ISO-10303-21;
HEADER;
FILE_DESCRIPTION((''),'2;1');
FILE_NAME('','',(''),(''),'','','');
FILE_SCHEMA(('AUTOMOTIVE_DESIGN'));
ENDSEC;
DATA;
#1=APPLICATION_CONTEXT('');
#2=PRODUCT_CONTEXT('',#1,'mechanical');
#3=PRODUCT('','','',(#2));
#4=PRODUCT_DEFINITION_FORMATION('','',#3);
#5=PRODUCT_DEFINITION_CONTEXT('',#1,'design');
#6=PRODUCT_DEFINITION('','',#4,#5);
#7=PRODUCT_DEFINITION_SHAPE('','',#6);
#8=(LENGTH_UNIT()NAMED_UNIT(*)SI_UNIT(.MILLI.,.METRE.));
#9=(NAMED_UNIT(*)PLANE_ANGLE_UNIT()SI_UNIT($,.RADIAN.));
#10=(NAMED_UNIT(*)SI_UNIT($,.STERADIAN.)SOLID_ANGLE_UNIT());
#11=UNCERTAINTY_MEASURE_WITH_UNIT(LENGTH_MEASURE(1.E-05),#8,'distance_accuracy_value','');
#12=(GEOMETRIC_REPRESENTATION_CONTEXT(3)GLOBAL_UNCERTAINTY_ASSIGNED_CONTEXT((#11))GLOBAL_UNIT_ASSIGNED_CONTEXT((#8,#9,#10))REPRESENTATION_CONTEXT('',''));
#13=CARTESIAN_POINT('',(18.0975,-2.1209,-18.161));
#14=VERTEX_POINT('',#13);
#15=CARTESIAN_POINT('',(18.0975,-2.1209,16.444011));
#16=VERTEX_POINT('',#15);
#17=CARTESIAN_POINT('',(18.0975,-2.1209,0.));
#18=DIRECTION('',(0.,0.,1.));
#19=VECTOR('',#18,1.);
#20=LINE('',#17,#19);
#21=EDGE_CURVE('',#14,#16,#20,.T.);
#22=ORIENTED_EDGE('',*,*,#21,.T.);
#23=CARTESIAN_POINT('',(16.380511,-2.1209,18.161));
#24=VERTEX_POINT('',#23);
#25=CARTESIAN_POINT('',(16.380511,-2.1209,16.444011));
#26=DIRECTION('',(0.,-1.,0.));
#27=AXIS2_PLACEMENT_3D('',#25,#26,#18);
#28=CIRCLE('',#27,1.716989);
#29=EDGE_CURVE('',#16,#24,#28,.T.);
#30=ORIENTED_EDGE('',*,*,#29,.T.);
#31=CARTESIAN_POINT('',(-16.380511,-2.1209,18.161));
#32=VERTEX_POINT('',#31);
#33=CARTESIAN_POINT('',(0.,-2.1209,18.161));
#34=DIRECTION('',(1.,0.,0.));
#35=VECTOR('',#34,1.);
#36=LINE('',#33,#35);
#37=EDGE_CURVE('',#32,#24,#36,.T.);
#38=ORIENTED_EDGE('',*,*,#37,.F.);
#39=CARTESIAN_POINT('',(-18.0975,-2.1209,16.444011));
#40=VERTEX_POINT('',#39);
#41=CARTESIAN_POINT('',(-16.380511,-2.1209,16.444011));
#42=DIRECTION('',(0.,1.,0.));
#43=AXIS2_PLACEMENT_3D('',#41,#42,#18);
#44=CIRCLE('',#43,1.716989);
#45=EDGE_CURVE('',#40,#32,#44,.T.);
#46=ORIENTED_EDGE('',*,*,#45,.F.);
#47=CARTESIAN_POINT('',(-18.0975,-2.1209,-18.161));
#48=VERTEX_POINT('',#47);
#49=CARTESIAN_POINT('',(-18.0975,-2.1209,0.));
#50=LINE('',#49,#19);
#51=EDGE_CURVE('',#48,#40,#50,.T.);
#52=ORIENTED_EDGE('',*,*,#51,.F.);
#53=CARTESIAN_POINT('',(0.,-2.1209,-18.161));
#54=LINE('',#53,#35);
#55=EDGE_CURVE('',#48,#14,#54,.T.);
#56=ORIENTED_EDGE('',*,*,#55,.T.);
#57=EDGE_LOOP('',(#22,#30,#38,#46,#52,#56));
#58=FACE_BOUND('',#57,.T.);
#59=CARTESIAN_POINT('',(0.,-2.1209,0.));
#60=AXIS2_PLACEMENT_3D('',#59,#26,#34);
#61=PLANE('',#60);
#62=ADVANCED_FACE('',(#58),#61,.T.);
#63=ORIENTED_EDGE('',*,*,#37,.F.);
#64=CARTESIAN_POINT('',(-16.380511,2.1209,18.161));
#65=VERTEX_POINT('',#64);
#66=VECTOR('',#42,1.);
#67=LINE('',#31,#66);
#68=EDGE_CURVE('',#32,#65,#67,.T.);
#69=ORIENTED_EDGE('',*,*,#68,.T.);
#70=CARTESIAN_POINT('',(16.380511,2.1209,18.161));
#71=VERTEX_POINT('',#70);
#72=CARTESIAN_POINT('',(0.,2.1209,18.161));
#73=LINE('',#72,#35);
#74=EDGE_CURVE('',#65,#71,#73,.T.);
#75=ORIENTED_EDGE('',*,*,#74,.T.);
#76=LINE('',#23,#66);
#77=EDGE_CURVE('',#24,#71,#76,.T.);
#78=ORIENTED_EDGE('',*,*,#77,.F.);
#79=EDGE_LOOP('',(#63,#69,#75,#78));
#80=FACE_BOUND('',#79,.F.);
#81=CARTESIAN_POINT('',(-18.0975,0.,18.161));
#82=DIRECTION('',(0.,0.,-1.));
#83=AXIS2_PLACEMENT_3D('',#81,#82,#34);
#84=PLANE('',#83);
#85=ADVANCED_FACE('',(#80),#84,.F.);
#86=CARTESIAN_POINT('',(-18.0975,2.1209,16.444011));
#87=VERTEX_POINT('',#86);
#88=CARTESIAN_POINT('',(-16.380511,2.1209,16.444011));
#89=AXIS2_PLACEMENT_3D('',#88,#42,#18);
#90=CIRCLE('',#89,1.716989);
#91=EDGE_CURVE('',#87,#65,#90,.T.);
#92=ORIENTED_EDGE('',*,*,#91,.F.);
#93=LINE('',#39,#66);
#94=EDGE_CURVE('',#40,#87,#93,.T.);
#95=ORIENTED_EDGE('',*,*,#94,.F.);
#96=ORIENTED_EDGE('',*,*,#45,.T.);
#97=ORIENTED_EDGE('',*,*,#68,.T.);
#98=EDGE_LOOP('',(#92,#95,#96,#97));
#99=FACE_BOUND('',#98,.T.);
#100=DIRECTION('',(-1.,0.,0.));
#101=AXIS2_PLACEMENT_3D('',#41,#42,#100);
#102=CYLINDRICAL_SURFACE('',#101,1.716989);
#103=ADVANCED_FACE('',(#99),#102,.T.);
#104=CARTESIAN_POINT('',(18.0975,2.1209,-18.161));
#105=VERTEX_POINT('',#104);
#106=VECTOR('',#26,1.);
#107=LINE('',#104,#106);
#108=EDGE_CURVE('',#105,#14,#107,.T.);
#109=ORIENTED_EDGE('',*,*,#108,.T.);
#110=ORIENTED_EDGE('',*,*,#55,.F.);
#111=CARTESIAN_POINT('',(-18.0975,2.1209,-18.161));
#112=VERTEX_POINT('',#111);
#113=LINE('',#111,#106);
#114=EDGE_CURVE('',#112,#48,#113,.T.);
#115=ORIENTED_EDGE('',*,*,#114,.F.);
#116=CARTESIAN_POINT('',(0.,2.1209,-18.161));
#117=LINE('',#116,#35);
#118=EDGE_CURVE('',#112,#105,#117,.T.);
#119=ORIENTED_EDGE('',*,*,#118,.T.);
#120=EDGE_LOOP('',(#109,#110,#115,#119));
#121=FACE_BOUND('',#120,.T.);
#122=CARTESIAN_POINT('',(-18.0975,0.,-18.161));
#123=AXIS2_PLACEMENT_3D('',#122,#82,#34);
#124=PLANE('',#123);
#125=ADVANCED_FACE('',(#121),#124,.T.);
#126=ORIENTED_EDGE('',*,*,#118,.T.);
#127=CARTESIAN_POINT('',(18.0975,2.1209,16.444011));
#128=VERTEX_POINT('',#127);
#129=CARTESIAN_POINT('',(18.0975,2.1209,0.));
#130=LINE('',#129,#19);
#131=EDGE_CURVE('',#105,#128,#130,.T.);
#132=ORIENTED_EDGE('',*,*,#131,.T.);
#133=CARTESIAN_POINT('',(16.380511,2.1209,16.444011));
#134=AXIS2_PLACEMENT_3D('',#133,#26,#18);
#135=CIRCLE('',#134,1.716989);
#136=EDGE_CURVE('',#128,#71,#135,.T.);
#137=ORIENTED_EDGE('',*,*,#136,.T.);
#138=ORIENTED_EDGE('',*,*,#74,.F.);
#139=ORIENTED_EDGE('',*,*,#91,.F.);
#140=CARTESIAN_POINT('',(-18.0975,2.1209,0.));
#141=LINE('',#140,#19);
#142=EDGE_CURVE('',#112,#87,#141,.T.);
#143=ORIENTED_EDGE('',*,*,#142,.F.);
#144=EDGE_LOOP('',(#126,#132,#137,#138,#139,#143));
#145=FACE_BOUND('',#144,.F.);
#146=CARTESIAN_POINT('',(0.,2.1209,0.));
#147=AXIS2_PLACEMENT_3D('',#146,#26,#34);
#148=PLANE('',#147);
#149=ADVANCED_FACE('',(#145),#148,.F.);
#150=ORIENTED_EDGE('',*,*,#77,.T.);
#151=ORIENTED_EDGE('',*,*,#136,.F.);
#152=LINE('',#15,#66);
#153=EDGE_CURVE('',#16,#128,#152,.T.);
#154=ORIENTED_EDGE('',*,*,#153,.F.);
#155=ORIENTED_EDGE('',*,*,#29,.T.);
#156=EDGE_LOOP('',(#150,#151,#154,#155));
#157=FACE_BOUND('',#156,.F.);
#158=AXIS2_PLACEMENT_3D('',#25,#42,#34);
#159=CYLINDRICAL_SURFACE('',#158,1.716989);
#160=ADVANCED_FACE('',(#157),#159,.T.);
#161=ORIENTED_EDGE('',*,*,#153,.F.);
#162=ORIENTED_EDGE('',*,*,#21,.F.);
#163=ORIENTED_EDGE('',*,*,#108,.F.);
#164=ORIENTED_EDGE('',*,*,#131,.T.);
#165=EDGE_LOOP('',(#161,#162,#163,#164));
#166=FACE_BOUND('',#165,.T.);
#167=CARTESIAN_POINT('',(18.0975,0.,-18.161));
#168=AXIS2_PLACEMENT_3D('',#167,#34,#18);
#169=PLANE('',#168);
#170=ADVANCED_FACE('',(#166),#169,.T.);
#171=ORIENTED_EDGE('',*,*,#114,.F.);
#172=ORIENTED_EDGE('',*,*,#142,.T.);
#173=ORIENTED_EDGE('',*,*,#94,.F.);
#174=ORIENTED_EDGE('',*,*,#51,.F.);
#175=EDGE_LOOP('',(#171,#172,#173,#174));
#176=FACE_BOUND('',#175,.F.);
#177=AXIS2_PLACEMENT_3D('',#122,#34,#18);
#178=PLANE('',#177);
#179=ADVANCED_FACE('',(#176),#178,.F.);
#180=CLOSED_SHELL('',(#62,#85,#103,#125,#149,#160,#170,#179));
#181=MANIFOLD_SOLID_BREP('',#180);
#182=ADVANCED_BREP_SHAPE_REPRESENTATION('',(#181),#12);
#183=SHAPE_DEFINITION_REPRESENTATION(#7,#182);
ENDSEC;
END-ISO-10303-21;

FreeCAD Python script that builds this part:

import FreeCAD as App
import Part
import Sketcher
from FreeCAD import Vector
Q = App.Units.Quantity


def edges_at(feature, points):
    """Names of the edges that pass closest to the given points."""
    edges = feature.Shape.Edges
    near = lambda p: min(range(len(edges)), key=lambda i: edges[i].distToShape(Part.Vertex(*p))[0])
    return sorted({f"Edge{near(p) + 1}" for p in points})


def add_polygon(sketch, points):
    """Adds a closed chain of lines whose ends are joined by coincident constraints."""
    first, n = sketch.GeometryCount, len(points)
    for a, b in zip(points, points[1:] + points[:1]):
        sketch.addGeometry(Part.LineSegment(App.Vector(*a, 0), App.Vector(*b, 0)), False)
    for i in range(n):
        sketch.addConstraint(Sketcher.Constraint("Coincident", first + i, 2, first + (i + 1) % n, 1))

doc = App.newDocument("Part")
body = doc.addObject("PartDesign::Body", "Body")

# Sketch on XZ plane
sketch1 = body.newObject("Sketcher::SketchObject", "Sketch")
sketch1.AttachmentSupport = (doc.getObject("XZ_Plane"), [""])
sketch1.MapMode = "FlatFace"
add_polygon(sketch1, [(-18, 18), (-18, -18), (18, -18), (18, 18)])  # lines 0-3
sketch1.addConstraint(Sketcher.Constraint("Vertical", 0))
sketch1.addConstraint(Sketcher.Constraint("Horizontal", 1))
sketch1.addConstraint(Sketcher.Constraint("Vertical", 2))
sketch1.addConstraint(Sketcher.Constraint("Horizontal", 3))
sketch1.addConstraint(Sketcher.Constraint("Symmetric", 0, 2, 2, 2, -1, 1))
sketch1.addConstraint(Sketcher.Constraint("DistanceY", 0, 2, 0, 1, Q("1.43 in")))
sketch1.addConstraint(Sketcher.Constraint("DistanceX", 1, 1, 1, 2, Q("1.425 in")))
pad1 = body.newObject("PartDesign::Pad", "Pad")
pad1.Profile = sketch1
pad1.Length = Q("0.167 in")
pad1.Midplane = True
doc.recompute()

fillet = body.newObject("PartDesign::Fillet", "Fillet")
fillet.Base = (pad1, edges_at(pad1, [(-18.098, 0, 18.161), (18.098, 0, 18.161)]))
fillet.Radius = 1.716989

doc.recompute()
